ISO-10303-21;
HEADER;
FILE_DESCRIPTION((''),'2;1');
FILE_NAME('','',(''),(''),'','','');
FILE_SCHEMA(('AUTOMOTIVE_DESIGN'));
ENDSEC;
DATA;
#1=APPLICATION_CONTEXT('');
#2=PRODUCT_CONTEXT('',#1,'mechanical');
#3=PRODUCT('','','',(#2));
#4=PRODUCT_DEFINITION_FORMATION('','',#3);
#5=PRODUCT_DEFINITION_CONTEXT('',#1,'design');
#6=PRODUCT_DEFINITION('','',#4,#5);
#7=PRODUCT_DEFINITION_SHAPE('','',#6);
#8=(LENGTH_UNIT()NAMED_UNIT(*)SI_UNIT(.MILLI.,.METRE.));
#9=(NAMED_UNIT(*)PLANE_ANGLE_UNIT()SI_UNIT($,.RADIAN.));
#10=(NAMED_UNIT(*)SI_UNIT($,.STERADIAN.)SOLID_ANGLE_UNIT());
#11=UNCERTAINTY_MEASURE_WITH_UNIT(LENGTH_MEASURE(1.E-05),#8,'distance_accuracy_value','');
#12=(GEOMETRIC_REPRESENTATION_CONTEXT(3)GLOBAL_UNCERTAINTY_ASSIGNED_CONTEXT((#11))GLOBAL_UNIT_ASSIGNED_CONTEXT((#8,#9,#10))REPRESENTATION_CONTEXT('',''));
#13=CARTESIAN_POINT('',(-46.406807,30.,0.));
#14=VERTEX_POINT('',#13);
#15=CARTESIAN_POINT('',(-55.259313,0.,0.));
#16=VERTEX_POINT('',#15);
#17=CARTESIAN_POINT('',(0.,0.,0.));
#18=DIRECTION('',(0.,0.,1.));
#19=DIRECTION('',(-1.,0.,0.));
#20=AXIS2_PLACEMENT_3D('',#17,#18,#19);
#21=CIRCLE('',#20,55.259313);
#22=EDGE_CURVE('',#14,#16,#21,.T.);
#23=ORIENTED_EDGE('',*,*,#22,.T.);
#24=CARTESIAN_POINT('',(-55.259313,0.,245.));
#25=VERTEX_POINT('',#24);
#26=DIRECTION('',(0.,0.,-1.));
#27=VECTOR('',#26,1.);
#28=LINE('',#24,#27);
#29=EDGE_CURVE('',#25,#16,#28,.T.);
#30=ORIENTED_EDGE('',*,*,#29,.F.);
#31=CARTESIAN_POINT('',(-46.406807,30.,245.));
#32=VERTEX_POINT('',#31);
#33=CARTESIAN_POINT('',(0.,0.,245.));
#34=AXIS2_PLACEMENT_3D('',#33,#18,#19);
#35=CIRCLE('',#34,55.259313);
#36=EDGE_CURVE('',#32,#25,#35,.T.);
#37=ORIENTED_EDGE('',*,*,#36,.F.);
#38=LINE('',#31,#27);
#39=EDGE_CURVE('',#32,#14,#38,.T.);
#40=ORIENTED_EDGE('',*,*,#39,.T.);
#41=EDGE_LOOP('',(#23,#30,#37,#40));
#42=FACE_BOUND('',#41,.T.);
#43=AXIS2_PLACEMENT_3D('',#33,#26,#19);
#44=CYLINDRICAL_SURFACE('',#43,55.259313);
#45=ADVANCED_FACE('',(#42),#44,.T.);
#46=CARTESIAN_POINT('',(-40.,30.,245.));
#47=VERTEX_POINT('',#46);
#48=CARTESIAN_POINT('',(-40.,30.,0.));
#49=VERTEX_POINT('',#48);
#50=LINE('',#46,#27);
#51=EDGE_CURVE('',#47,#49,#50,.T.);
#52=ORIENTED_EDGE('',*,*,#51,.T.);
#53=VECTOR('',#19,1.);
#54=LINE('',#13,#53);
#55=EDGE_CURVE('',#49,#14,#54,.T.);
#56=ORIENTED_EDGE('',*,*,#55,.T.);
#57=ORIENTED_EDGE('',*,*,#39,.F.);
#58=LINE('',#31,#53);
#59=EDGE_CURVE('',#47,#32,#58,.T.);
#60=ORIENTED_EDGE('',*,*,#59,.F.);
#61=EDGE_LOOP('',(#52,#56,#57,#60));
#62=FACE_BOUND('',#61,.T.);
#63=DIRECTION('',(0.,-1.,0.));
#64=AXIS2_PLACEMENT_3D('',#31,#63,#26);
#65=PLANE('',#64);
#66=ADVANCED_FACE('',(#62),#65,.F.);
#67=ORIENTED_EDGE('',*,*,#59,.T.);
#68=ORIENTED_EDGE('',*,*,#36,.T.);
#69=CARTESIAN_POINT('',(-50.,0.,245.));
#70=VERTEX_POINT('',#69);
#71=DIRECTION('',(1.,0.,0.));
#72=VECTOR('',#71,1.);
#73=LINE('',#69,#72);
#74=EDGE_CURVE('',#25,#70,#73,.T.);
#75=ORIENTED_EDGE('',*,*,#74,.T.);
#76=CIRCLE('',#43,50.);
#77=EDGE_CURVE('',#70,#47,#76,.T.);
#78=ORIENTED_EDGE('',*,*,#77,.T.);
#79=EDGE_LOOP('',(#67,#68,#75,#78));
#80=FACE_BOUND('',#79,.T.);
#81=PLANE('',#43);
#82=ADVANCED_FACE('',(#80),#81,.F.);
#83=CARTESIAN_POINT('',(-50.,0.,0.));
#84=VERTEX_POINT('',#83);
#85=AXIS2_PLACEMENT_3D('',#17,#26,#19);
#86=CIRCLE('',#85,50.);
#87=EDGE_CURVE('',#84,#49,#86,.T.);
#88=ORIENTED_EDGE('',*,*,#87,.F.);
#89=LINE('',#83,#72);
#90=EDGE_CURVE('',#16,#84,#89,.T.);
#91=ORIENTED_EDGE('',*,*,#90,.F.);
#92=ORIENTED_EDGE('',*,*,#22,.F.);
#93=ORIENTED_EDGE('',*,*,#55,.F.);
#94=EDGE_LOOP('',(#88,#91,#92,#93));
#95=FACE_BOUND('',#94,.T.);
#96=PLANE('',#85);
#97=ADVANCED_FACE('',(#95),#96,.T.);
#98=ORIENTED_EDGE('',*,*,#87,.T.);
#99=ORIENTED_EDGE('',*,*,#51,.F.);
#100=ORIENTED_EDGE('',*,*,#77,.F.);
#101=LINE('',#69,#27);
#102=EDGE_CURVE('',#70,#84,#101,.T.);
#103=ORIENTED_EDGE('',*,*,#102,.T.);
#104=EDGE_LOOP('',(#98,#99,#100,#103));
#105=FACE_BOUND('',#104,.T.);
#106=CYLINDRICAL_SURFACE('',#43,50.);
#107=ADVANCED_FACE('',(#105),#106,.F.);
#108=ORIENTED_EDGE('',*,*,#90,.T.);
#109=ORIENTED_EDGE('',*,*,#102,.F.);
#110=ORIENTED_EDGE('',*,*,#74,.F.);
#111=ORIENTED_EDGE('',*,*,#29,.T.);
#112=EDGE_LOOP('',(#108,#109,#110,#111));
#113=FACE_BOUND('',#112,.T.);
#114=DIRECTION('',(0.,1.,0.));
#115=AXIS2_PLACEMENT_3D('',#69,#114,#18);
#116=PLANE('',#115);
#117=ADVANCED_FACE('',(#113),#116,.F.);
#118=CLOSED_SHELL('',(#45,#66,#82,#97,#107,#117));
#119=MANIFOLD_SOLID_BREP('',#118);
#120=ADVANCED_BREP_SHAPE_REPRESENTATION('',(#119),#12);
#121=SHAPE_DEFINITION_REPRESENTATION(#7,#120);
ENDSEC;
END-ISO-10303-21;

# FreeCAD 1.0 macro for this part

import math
import FreeCAD as App
import Part
import Sketcher

V = App.Vector
Q = App.Units.Quantity

doc = App.newDocument("Part")
body = doc.addObject("PartDesign::Body", "Body")

sketch1 = body.newObject("Sketcher::SketchObject", "Sketch")
sketch1.AttachmentSupport = (doc.getObject("XY_Plane"), [""])
sketch1.MapMode = "FlatFace"
sketch1.addGeometry([
    Part.LineSegment(V(-40, 30, 0), V(-46, 30, 0)),
    Part.ArcOfCircle(Part.Circle(V(0, 0, 0), V(0, 0, 1), 55), math.radians(147), math.radians(180)),
    Part.LineSegment(V(-55, 0, 0), V(-50, 0, 0)),
    Part.ArcOfCircle(Part.Circle(V(0, 0, 0), V(0, 0, 1), 50), math.radians(143), math.radians(180)),
], False)
sketch1.addConstraint([
    Sketcher.Constraint("Coincident", 0, 2, 1, 1),
    Sketcher.Constraint("Coincident", 1, 2, 2, 1),
    Sketcher.Constraint("Coincident", 2, 2, 3, 2),
    Sketcher.Constraint("Coincident", 3, 1, 0, 1),
    Sketcher.Constraint("Horizontal", 0),
    Sketcher.Constraint("Horizontal", 2),
    Sketcher.Constraint("Coincident", 1, 3, -1, 1),
    Sketcher.Constraint("Coincident", 3, 3, -1, 1),
    Sketcher.Constraint("PointOnObject", 1, 2, -1),
    Sketcher.Constraint("Radius", 3, Q("50 mm")),
    Sketcher.Constraint("DistanceY", -1, 1, 0, 2, Q("30 mm")),
    Sketcher.Constraint("Radius", 1, Q("55.259313 mm")),
])
pad1 = body.newObject("PartDesign::Pad", "Pad")
pad1.Profile = sketch1
pad1.Length = 245

doc.recompute()
